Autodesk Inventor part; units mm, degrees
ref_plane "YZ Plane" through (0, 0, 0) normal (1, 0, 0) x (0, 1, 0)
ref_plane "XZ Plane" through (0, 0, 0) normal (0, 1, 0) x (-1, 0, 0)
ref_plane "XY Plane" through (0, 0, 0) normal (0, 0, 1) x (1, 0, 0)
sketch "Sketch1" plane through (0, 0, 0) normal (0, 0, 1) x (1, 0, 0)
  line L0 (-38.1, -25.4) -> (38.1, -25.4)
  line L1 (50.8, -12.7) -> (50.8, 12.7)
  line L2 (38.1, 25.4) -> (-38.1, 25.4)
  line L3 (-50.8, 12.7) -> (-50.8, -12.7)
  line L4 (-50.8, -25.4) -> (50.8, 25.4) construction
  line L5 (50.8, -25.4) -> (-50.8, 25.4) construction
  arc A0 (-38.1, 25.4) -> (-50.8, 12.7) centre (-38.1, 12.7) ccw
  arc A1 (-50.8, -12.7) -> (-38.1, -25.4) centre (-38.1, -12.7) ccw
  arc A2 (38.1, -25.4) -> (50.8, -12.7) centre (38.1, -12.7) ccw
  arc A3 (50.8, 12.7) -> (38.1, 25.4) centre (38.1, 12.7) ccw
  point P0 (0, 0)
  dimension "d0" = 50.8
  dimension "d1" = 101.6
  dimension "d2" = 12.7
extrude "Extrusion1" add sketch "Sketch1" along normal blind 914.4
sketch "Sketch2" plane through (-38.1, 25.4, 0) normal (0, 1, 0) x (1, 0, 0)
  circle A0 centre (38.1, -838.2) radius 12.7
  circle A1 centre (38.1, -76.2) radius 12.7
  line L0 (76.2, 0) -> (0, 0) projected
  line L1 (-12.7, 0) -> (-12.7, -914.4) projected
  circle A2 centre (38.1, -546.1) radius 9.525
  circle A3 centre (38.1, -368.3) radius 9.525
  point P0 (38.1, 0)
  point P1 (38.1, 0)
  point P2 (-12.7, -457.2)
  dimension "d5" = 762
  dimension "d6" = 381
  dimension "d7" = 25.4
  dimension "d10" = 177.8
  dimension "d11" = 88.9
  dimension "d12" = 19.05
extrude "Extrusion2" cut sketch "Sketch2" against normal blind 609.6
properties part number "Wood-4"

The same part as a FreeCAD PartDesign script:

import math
import FreeCAD as App
import Part
import Sketcher
Q = App.Units.Quantity

doc = App.newDocument("Part")
body = doc.addObject("PartDesign::Body", "Body")

# Sketch on XY plane
sketch1 = body.newObject("Sketcher::SketchObject", "Sketch")
sketch1.AttachmentSupport = (doc.getObject("XY_Plane"), [""])
sketch1.MapMode = "FlatFace"
sketch1.addGeometry(Part.ArcOfCircle(Part.Circle(App.Vector(-38, -13, 0), App.Vector(0, 0, 1), 13), math.radians(180), math.radians(270)), False)
sketch1.addGeometry(Part.LineSegment(App.Vector(-38, -25, 0), App.Vector(38, -25, 0)), False)
sketch1.addGeometry(Part.ArcOfCircle(Part.Circle(App.Vector(38, -13, 0), App.Vector(0, 0, 1), 13), math.radians(-90), math.radians(0)), False)
sketch1.addGeometry(Part.LineSegment(App.Vector(51, -13, 0), App.Vector(51, 13, 0)), False)
sketch1.addGeometry(Part.ArcOfCircle(Part.Circle(App.Vector(38, 13, 0), App.Vector(0, 0, 1), 13), math.radians(0), math.radians(90)), False)
sketch1.addGeometry(Part.LineSegment(App.Vector(38, 25, 0), App.Vector(-38, 25, 0)), False)
sketch1.addGeometry(Part.ArcOfCircle(Part.Circle(App.Vector(-38, 13, 0), App.Vector(0, 0, 1), 13), math.radians(90), math.radians(180)), False)
sketch1.addGeometry(Part.LineSegment(App.Vector(-51, 13, 0), App.Vector(-51, -13, 0)), False)
sketch1.addConstraint(Sketcher.Constraint("Tangent", 0, 2, 1, 1))
sketch1.addConstraint(Sketcher.Constraint("Tangent", 1, 2, 2, 1))
sketch1.addConstraint(Sketcher.Constraint("Tangent", 2, 2, 3, 1))
sketch1.addConstraint(Sketcher.Constraint("Tangent", 3, 2, 4, 1))
sketch1.addConstraint(Sketcher.Constraint("Tangent", 4, 2, 5, 1))
sketch1.addConstraint(Sketcher.Constraint("Tangent", 5, 2, 6, 1))
sketch1.addConstraint(Sketcher.Constraint("Tangent", 6, 2, 7, 1))
sketch1.addConstraint(Sketcher.Constraint("Tangent", 7, 2, 0, 1))
sketch1.addConstraint(Sketcher.Constraint("Horizontal", 1))
sketch1.addConstraint(Sketcher.Constraint("Vertical", 3))
sketch1.addConstraint(Sketcher.Constraint("Horizontal", 5))
sketch1.addConstraint(Sketcher.Constraint("Vertical", 7))
sketch1.addConstraint(Sketcher.Constraint("Equal", 0, 2))
sketch1.addConstraint(Sketcher.Constraint("Equal", 2, 4))
sketch1.addConstraint(Sketcher.Constraint("Equal", 4, 6))
sketch1.addConstraint(Sketcher.Constraint("Symmetric", 0, 3, 4, 3, -1, 1))
sketch1.addConstraint(Sketcher.Constraint("Radius", 0, Q("0.5 in")))
sketch1.addConstraint(Sketcher.Constraint("DistanceX", -1, 1, 2, 2, Q("2 in")))
sketch1.addConstraint(Sketcher.Constraint("DistanceY", 1, 2, 4, 2, Q("2 in")))
pad1 = body.newObject("PartDesign::Pad", "Pad")
pad1.Profile = sketch1
pad1.Length = Q("36 in")

# Sketch on XZ plane
sketch2 = body.newObject("Sketcher::SketchObject", "Sketch001")
sketch2.AttachmentSupport = (doc.getObject("XZ_Plane"), [""])
sketch2.MapMode = "FlatFace"
sketch2.AttachmentOffset = App.Placement(App.Vector(0, 0, -1 * 25.4), App.Rotation())
sketch2.addGeometry(Part.Circle(App.Vector(0, 838, 0), App.Vector(0, 0, 1), 13), False)
sketch2.addGeometry(Part.Circle(App.Vector(0, 76, 0), App.Vector(0, 0, 1), 13), False)
sketch2.addGeometry(Part.Circle(App.Vector(0, 546, 0), App.Vector(0, 0, 1), 10), False)
sketch2.addGeometry(Part.Circle(App.Vector(0, 368, 0), App.Vector(0, 0, 1), 10), False)
sketch2.addConstraint(Sketcher.Constraint("Equal", 0, 1))
sketch2.addConstraint(Sketcher.Constraint("Equal", 2, 3))
sketch2.addConstraint(Sketcher.Constraint("PointOnObject", 0, 3, -2))
sketch2.addConstraint(Sketcher.Constraint("PointOnObject", 1, 3, -2))
sketch2.addConstraint(Sketcher.Constraint("PointOnObject", 2, 3, -2))
sketch2.addConstraint(Sketcher.Constraint("PointOnObject", 3, 3, -2))
sketch2.addConstraint(Sketcher.Constraint("Diameter", 0, Q("1 in")))
sketch2.addConstraint(Sketcher.Constraint("Diameter", 2, Q("0.75 in")))
sketch2.addConstraint(Sketcher.Constraint("DistanceY", 1, 3, 0, 3, Q("30 in")))
sketch2.addConstraint(Sketcher.Constraint("DistanceY", 3, 3, 2, 3, Q("7 in")))
sketch2.addConstraint(Sketcher.Constraint("DistanceY", -1, 1, 0, 3, Q("33 in")))
sketch2.addConstraint(Sketcher.Constraint("DistanceY", -1, 1, 2, 3, Q("21.5 in")))
pocket1 = body.newObject("PartDesign::Pocket", "Pocket")
pocket1.Profile = sketch2
pocket1.Length = Q("24 in")
pocket1.Reversed = True

doc.recompute()
